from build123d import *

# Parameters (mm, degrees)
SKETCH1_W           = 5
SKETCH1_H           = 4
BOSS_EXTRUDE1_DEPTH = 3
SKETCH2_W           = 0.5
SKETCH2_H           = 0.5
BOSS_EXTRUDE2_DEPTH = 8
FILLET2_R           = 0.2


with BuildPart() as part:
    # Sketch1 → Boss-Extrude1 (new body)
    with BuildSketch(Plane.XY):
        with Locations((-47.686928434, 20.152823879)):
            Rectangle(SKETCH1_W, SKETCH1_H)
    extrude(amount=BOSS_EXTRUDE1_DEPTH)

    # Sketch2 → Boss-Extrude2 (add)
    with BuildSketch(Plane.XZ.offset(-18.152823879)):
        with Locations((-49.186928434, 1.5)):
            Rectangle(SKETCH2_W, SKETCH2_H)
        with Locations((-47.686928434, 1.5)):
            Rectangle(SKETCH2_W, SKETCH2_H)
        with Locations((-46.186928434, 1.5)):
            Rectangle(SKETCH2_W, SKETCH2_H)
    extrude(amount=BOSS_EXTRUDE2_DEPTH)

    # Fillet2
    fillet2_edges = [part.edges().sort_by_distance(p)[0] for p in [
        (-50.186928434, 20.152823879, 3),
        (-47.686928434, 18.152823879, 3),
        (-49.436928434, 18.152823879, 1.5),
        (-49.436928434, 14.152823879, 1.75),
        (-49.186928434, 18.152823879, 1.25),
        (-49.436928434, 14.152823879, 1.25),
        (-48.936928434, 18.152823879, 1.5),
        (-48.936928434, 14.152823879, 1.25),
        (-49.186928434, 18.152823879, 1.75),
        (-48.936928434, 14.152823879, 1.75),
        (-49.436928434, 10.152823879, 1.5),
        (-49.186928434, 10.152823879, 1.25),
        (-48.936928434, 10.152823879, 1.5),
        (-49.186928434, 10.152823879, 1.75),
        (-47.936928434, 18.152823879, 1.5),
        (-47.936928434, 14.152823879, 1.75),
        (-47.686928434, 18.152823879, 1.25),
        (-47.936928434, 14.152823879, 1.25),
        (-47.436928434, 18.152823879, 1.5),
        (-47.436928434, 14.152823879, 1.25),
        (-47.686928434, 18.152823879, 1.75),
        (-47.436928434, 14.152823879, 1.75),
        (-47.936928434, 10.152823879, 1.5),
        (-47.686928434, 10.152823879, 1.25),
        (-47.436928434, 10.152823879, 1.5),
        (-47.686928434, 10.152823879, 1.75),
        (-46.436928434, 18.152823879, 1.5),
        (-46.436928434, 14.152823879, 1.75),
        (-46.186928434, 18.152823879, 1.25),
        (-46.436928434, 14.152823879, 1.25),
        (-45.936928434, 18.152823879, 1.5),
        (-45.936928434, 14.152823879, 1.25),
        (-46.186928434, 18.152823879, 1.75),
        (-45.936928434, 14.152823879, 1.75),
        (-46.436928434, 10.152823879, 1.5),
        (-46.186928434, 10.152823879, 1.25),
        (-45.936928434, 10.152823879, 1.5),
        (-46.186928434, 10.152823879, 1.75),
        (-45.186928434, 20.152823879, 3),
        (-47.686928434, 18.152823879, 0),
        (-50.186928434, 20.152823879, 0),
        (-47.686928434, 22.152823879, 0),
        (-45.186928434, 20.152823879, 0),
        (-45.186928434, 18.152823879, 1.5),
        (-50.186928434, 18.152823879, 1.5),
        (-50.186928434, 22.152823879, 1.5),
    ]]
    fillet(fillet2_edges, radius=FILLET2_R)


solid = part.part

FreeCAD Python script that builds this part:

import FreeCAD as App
import Part
import Sketcher

V = App.Vector


def edges_at(feature, points):
    """Names of the edges that pass closest to the given points."""
    edges = feature.Shape.Edges
    near = lambda p: min(range(len(edges)), key=lambda i: edges[i].distToShape(Part.Vertex(*p))[0])
    return sorted({f"Edge{near(p) + 1}" for p in points})


def add_polygon(sketch, points):
    """Adds a closed chain of lines whose ends are joined by coincident constraints."""
    first, n = sketch.GeometryCount, len(points)
    for a, b in zip(points, points[1:] + points[:1]):
        sketch.addGeometry(Part.LineSegment(App.Vector(*a, 0), App.Vector(*b, 0)), False)
    for i in range(n):
        sketch.addConstraint(Sketcher.Constraint("Coincident", first + i, 2, first + (i + 1) % n, 1))

doc = App.newDocument("Part")
body = doc.addObject("PartDesign::Body", "Body")

# Sketch on XY plane
sketch1 = body.newObject("Sketcher::SketchObject", "Sketch")
sketch1.AttachmentSupport = (doc.getObject("XY_Plane"), [""])
sketch1.MapMode = "FlatFace"
add_polygon(sketch1, [(-50.2, 22.2), (-50.2, 18.2), (-45.2, 18.2), (-45.2, 22.2)])  # lines 0-3
sketch1.addConstraint([
    Sketcher.Constraint("Vertical", 0),
    Sketcher.Constraint("Horizontal", 1),
    Sketcher.Constraint("Vertical", 2),
    Sketcher.Constraint("Horizontal", 3),
    Sketcher.Constraint("DistanceX", 1, 1, 1, 2, 5.0),
    Sketcher.Constraint("DistanceY", 0, 2, 0, 1, 4.0),
    Sketcher.Constraint("DistanceX", 0, 2, -1, 1, 50.186928),
    Sketcher.Constraint("DistanceY", -1, 1, 0, 2, 18.152824),
])
pad1 = body.newObject("PartDesign::Pad", "Pad")
pad1.Profile = sketch1
pad1.Length = 3

# Sketch on XZ plane
sketch2 = body.newObject("Sketcher::SketchObject", "Sketch001")
sketch2.AttachmentSupport = (doc.getObject("XZ_Plane"), [""])
sketch2.MapMode = "FlatFace"
sketch2.AttachmentOffset = App.Placement(V(0, 0, -18.152824), App.Rotation())
add_polygon(sketch2, [(-49.4, 1.8), (-49.4, 1.2), (-48.9, 1.2), (-48.9, 1.8)])  # lines 0-3
add_polygon(sketch2, [(-47.9, 1.8), (-47.9, 1.2), (-47.4, 1.2), (-47.4, 1.8)])  # lines 4-7
add_polygon(sketch2, [(-46.4, 1.8), (-46.4, 1.2), (-45.9, 1.2), (-45.9, 1.8)])  # lines 8-11
sketch2.addConstraint([
    Sketcher.Constraint("Vertical", 0),
    Sketcher.Constraint("Horizontal", 1),
    Sketcher.Constraint("Vertical", 2),
    Sketcher.Constraint("Horizontal", 3),
    Sketcher.Constraint("Vertical", 4),
    Sketcher.Constraint("Horizontal", 5),
    Sketcher.Constraint("Vertical", 6),
    Sketcher.Constraint("Horizontal", 7),
    Sketcher.Constraint("Vertical", 8),
    Sketcher.Constraint("Horizontal", 9),
    Sketcher.Constraint("Vertical", 10),
    Sketcher.Constraint("Horizontal", 11),
    Sketcher.Constraint("Horizontal", 1, 2, 4, 2),
    Sketcher.Constraint("Horizontal", 3, 2, 6, 2),
    Sketcher.Constraint("Horizontal", 5, 2, 8, 2),
    Sketcher.Constraint("Horizontal", 7, 2, 10, 2),
    Sketcher.Constraint("Equal", 3, 5),
    Sketcher.Constraint("Equal", 7, 9),
    Sketcher.Constraint("Equal", 11, 0),
    Sketcher.Constraint("DistanceX", 1, 1, 1, 2, 0.5),
    Sketcher.Constraint("DistanceX", 1, 2, 4, 2, 1.0),
    Sketcher.Constraint("DistanceX", 5, 2, 8, 2, 1.0),
    Sketcher.Constraint("DistanceY", -1, 1, 0, 2, 1.25),
    Sketcher.Constraint("DistanceX", 0, 2, -1, 1, 49.436928),
])
pad2 = body.newObject("PartDesign::Pad", "Pad001")
pad2.Profile = sketch2
pad2.Length = 8
doc.recompute()

fillet = body.newObject("PartDesign::Fillet", "Fillet")
fillet.Base = (pad2, edges_at(pad2, [
    (-50.187, 20.153, 3),
    (-47.687, 18.153, 3),
    (-49.437, 18.153, 1.5),
    (-49.437, 14.153, 1.75),
    (-49.187, 18.153, 1.25),
    (-49.437, 14.153, 1.25),
    (-48.937, 18.153, 1.5),
    (-48.937, 14.153, 1.25),
    (-49.187, 18.153, 1.75),
    (-48.937, 14.153, 1.75),
    (-49.437, 10.153, 1.5),
    (-49.187, 10.153, 1.25),
    (-48.937, 10.153, 1.5),
    (-49.187, 10.153, 1.75),
    (-47.937, 18.153, 1.5),
    (-47.937, 14.153, 1.75),
    (-47.687, 18.153, 1.25),
    (-47.937, 14.153, 1.25),
    (-47.437, 18.153, 1.5),
    (-47.437, 14.153, 1.25),
    (-47.687, 18.153, 1.75),
    (-47.437, 14.153, 1.75),
    (-47.937, 10.153, 1.5),
    (-47.687, 10.153, 1.25),
    (-47.437, 10.153, 1.5),
    (-47.687, 10.153, 1.75),
    (-46.437, 18.153, 1.5),
    (-46.437, 14.153, 1.75),
    (-46.187, 18.153, 1.25),
    (-46.437, 14.153, 1.25),
    (-45.937, 18.153, 1.5),
    (-45.937, 14.153, 1.25),
    (-46.187, 18.153, 1.75),
    (-45.937, 14.153, 1.75),
    (-46.437, 10.153, 1.5),
    (-46.187, 10.153, 1.25),
    (-45.937, 10.153, 1.5),
    (-46.187, 10.153, 1.75),
    (-45.187, 20.153, 3),
    (-47.687, 18.153, 0),
    (-50.187, 20.153, 0),
    (-47.687, 22.153, 0),
    (-45.187, 20.153, 0),
    (-45.187, 18.153, 1.5),
    (-50.187, 18.153, 1.5),
    (-50.187, 22.153, 1.5),
]))
fillet.Radius = 0.2

doc.recompute()
